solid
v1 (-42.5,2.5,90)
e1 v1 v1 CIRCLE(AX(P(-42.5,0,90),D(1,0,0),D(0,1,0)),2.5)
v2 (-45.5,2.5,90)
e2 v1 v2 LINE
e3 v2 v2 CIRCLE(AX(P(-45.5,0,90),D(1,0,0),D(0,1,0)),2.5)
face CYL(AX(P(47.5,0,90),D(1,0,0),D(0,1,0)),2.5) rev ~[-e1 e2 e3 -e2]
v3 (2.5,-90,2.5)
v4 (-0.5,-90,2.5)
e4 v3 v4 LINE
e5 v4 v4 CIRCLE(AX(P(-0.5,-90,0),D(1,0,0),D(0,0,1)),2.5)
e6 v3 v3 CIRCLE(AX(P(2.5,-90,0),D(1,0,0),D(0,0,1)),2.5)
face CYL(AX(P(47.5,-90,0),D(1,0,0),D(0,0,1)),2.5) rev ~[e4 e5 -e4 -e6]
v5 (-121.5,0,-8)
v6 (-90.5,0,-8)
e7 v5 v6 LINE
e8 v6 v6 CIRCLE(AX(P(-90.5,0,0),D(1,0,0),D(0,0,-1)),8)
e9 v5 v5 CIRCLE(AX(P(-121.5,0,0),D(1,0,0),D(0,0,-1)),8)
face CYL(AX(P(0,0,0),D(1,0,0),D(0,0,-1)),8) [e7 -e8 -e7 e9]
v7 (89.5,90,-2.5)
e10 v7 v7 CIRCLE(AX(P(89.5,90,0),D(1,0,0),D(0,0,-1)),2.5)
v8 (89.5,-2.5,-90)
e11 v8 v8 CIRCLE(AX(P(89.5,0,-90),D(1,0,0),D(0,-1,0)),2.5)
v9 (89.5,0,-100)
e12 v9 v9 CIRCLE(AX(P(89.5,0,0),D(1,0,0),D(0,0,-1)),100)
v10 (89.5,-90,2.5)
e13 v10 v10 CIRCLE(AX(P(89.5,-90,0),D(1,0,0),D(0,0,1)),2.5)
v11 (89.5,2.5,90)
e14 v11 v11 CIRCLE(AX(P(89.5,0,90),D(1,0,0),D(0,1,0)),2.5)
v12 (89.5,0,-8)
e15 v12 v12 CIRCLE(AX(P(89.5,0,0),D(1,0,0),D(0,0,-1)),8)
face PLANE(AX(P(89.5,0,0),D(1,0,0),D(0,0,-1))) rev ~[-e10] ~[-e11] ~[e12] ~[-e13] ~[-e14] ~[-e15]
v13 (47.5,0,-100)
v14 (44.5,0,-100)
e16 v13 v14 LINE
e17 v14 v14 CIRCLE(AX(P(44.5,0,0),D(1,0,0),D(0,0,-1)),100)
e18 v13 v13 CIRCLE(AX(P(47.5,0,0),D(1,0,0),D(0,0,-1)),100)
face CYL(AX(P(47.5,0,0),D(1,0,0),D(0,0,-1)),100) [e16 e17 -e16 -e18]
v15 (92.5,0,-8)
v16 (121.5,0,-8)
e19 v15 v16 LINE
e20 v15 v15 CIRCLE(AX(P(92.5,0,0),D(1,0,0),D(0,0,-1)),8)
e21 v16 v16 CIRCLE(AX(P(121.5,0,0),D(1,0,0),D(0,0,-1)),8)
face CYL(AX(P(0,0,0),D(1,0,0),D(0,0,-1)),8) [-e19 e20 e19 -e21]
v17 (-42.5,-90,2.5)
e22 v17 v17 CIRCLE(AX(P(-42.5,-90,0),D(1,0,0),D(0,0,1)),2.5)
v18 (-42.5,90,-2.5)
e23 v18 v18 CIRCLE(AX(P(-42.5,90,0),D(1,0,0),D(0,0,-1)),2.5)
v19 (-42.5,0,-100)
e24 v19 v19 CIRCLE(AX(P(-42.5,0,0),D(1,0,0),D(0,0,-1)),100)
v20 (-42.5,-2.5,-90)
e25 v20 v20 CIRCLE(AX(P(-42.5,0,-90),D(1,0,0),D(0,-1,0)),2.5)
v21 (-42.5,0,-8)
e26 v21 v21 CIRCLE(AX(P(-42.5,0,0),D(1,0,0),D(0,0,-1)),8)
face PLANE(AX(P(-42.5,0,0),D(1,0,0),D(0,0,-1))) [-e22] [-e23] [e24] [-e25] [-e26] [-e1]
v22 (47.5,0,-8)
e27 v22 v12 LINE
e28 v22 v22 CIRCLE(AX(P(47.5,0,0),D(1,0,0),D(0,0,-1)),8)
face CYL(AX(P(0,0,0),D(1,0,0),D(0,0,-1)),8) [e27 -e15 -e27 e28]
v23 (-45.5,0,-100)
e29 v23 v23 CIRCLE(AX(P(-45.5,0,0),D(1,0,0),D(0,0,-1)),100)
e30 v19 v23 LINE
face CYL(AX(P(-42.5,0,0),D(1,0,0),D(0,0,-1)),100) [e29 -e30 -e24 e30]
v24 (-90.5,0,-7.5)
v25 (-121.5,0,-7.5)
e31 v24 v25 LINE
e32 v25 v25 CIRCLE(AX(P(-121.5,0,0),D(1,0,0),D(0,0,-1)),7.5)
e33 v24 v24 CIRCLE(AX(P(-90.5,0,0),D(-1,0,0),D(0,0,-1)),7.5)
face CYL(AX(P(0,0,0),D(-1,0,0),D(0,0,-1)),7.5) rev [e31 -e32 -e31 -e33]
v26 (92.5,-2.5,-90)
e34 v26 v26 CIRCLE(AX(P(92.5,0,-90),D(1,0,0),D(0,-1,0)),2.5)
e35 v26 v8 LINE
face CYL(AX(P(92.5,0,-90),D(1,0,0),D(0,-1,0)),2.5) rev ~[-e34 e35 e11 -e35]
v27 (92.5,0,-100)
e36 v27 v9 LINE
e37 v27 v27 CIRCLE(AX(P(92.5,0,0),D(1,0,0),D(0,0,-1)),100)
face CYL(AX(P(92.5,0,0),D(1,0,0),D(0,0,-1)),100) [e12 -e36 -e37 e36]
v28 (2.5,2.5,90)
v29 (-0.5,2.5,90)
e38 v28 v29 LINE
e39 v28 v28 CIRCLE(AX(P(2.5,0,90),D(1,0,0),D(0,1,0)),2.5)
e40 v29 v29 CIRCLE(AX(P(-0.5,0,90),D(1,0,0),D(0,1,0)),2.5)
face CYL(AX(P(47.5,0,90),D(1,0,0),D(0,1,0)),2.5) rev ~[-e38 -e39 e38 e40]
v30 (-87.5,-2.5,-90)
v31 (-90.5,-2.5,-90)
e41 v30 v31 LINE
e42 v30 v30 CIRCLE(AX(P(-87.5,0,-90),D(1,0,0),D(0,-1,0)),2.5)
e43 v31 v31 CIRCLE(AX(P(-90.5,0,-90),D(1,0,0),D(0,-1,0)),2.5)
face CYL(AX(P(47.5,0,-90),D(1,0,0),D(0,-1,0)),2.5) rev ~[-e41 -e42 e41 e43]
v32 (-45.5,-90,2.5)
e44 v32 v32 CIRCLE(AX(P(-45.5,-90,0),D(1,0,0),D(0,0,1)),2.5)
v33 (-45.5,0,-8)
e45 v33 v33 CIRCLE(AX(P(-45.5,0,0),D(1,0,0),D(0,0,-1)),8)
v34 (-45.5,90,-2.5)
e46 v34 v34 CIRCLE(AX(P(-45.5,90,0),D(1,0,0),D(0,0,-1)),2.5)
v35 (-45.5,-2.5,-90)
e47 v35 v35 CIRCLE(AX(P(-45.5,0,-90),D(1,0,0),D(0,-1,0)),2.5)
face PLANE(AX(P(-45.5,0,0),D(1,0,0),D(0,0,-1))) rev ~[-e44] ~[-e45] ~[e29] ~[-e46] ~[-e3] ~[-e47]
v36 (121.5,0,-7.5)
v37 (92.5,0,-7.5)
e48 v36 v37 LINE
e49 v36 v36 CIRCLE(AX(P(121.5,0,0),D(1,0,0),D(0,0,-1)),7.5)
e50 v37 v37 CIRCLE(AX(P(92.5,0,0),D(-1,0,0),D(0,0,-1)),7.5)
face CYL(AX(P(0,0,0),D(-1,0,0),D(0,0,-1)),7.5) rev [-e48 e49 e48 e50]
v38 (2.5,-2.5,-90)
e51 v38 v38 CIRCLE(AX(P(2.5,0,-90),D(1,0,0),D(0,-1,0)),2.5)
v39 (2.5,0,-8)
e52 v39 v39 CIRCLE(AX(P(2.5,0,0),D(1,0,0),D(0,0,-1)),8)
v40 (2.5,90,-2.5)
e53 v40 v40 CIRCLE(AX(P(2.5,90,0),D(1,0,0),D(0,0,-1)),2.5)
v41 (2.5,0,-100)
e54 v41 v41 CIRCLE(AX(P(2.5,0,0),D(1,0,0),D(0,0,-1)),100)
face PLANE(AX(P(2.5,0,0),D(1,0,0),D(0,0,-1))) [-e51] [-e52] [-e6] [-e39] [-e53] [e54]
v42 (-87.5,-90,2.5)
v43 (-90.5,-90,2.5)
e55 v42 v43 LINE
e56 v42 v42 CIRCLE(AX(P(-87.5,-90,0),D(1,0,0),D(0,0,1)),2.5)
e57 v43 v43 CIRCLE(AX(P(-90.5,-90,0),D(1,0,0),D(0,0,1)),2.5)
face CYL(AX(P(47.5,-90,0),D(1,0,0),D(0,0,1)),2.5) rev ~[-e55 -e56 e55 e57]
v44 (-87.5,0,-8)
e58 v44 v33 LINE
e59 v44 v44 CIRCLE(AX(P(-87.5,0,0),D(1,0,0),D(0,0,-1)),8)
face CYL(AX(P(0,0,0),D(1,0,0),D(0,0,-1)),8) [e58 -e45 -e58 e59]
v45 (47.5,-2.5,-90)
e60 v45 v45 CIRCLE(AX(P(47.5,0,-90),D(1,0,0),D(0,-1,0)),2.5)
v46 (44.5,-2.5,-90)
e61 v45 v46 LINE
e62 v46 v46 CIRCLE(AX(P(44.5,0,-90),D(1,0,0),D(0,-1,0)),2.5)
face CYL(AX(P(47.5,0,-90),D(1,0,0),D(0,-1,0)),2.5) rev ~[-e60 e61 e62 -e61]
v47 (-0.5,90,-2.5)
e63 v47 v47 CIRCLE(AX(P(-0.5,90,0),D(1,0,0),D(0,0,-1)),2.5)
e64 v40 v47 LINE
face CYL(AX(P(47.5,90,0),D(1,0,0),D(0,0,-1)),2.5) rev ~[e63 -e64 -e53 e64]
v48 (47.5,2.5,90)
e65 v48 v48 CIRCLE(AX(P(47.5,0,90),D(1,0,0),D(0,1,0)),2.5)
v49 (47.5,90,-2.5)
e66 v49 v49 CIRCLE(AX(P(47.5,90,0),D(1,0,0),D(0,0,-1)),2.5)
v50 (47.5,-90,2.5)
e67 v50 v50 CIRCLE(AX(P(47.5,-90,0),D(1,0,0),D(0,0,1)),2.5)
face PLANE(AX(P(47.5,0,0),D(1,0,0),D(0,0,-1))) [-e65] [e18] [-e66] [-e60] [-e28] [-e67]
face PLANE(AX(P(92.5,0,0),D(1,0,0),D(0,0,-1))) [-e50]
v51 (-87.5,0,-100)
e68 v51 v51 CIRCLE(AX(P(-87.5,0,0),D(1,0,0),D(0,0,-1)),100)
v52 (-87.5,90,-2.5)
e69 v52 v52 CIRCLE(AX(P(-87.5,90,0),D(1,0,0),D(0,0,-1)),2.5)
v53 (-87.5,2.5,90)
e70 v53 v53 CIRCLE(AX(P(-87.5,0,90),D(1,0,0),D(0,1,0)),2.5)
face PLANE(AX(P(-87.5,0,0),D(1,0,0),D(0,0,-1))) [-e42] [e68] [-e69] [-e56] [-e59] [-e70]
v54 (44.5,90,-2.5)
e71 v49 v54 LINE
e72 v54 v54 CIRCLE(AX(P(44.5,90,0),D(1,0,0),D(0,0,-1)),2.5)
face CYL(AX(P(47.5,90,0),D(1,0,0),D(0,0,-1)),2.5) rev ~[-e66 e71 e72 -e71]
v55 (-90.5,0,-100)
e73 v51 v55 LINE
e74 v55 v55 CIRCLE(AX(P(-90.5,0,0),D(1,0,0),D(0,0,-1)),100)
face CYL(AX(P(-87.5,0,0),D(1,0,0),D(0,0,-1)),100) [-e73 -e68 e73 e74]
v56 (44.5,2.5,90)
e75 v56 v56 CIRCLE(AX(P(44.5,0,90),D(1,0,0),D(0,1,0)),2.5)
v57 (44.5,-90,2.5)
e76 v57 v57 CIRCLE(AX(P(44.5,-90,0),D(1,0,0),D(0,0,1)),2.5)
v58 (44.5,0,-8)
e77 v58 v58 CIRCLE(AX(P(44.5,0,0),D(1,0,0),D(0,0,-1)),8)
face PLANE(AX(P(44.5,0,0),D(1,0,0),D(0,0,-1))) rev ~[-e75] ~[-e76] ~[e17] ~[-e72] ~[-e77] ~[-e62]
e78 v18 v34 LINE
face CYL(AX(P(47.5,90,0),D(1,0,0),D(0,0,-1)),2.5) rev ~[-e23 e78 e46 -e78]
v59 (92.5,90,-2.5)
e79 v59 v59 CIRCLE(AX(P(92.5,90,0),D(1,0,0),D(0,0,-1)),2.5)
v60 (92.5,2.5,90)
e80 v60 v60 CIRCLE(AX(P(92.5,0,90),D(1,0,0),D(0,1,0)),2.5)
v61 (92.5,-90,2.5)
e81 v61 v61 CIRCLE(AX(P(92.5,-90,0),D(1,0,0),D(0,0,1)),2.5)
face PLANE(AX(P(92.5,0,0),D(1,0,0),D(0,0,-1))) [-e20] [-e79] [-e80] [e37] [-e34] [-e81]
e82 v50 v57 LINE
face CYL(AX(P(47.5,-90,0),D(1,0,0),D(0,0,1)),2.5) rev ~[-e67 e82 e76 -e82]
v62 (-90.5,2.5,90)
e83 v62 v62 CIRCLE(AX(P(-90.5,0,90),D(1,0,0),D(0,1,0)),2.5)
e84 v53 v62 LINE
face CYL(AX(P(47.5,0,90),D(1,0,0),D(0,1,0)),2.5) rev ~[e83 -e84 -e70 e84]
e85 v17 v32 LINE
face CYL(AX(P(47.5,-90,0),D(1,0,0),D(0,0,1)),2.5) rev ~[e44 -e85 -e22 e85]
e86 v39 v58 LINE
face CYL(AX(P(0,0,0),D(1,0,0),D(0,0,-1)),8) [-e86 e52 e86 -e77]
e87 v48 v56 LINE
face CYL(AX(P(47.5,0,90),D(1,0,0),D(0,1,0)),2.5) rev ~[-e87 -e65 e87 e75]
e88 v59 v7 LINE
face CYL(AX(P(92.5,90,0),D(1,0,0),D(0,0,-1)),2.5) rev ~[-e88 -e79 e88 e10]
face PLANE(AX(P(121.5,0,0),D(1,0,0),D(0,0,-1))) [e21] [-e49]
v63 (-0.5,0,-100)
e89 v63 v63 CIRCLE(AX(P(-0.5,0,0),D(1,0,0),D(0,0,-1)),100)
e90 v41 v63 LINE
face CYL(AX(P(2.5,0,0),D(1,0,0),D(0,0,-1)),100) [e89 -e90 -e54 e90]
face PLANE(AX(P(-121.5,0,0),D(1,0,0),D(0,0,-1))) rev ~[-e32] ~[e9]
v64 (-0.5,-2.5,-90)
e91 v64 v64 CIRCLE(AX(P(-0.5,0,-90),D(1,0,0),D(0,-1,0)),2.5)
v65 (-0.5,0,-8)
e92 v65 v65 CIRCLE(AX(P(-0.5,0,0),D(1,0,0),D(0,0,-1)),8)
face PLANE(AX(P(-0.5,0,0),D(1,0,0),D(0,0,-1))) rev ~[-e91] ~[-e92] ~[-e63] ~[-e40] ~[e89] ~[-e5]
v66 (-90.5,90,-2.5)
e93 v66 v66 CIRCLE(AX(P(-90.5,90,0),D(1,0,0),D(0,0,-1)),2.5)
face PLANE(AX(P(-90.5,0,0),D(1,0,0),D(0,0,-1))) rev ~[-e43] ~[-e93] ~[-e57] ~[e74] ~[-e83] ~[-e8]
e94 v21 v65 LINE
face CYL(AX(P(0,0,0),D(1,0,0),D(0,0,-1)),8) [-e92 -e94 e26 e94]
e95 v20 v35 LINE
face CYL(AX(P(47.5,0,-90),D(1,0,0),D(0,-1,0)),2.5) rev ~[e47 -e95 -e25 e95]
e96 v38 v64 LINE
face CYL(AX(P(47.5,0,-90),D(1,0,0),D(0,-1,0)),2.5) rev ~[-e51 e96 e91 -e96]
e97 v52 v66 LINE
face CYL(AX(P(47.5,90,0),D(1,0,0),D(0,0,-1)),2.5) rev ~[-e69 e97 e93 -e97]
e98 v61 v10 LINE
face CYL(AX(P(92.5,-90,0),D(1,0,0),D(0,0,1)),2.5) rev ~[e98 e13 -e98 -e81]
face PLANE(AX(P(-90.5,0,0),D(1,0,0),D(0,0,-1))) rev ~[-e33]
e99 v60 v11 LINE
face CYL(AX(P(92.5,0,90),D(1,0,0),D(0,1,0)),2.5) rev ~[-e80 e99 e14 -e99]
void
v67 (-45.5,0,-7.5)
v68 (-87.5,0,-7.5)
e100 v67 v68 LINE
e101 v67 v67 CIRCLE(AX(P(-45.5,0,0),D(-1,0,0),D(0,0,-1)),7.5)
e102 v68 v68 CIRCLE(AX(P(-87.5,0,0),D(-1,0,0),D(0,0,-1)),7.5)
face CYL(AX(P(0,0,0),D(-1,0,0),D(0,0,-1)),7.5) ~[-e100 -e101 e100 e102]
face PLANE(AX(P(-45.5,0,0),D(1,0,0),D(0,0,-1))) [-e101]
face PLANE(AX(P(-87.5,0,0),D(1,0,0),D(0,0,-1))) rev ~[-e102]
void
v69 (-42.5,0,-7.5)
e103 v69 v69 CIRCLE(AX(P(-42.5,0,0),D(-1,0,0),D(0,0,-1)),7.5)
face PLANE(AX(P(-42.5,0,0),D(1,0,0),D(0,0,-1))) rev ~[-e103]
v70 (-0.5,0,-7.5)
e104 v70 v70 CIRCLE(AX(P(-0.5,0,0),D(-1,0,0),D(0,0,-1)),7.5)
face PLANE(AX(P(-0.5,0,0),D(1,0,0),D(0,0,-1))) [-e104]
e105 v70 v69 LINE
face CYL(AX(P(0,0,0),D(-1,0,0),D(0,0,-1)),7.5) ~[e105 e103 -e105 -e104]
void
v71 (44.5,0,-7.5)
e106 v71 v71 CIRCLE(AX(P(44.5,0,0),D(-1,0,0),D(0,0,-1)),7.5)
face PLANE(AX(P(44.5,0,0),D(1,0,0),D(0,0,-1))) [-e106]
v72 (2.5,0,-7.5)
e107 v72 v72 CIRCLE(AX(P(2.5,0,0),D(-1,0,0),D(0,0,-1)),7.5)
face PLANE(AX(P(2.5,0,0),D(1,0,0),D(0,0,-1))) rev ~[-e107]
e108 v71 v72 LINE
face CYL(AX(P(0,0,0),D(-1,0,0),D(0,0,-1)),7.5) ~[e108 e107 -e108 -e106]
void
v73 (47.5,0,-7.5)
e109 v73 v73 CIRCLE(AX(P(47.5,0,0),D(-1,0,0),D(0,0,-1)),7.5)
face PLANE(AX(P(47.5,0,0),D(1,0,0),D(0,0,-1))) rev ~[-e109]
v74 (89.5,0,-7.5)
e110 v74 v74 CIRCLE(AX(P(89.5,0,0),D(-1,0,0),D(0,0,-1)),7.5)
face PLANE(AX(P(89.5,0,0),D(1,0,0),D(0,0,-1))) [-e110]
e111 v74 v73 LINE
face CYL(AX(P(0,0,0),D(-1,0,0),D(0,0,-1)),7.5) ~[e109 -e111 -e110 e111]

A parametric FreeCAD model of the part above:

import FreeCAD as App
import Part
import Sketcher

V = App.Vector
Q = App.Units.Quantity

doc = App.newDocument("Part")
body = doc.addObject("PartDesign::Body", "Body")

# Sketch on YZ plane
sketch1 = body.newObject("Sketcher::SketchObject", "Sketch")
sketch1.AttachmentSupport = (doc.getObject("YZ_Plane"), [""])
sketch1.MapMode = "FlatFace"
sketch1.addGeometry([
    Part.Circle(V(0, 0, 0), V(0, 0, 1), 8),
    Part.Circle(V(0, 0, 0), V(0, 0, 1), 8),
], False)
sketch1.addConstraint([
    Sketcher.Constraint("Coincident", 0, 3, -1, 1),
    Sketcher.Constraint("Coincident", 1, 3, -1, 1),
    Sketcher.Constraint("Diameter", 0, Q("16 mm")),
    Sketcher.Constraint("Diameter", 1, Q("15 mm")),
])
pad1 = body.newObject("PartDesign::Pad", "Pad")
pad1.Profile = sketch1
pad1.Length = 243
pad1.Midplane = True

# Sketch on YZ plane
sketch2 = body.newObject("Sketcher::SketchObject", "Sketch001")
sketch2.AttachmentSupport = (doc.getObject("YZ_Plane"), [""])
sketch2.MapMode = "FlatFace"
sketch2.AttachmentOffset = App.Placement(V(0, 0, 92.5), App.Rotation())
sketch2.addGeometry(Part.Circle(V(0, 0, 0), V(0, 0, 1), 100), False)
sketch2.addConstraint([
    Sketcher.Constraint("Coincident", 0, 3, -1, 1),
    Sketcher.Constraint("Diameter", 0, Q("200 mm")),
])
pad2 = body.newObject("PartDesign::Pad", "Pad001")
pad2.Profile = sketch2
pad2.Length = 3
pad2.Reversed = True

# Sketch on YZ plane
sketch3 = body.newObject("Sketcher::SketchObject", "Sketch002")
sketch3.AttachmentSupport = (doc.getObject("YZ_Plane"), [""])
sketch3.MapMode = "FlatFace"
sketch3.AttachmentOffset = App.Placement(V(0, 0, 92.5), App.Rotation())
sketch3.addGeometry(Part.Circle(V(90, 0, 0), V(0, 0, 1), 2.5), False)
sketch3.addConstraint([
    Sketcher.Constraint("PointOnObject", 0, 3, -1),
    Sketcher.Constraint("Diameter", 0, Q("5 mm")),
    Sketcher.Constraint("DistanceX", -1, 1, 0, 3, Q("90 mm")),
])
pocket1 = body.newObject("PartDesign::Pocket", "Pocket")
pocket1.Profile = sketch3
pocket1.Type = "ThroughAll"
doc.recompute()

polarpattern = body.newObject("PartDesign::PolarPattern", "PolarPattern")
polarpattern.Originals = [pocket1]
polarpattern.Axis = (doc.getObject("X_Axis"), [""])
polarpattern.Angle = 360
polarpattern.Occurrences = 4
body.Tip = polarpattern
doc.recompute()

linearpattern = body.newObject("PartDesign::LinearPattern", "LinearPattern")
linearpattern.Originals = [pad2, pocket1]
linearpattern.Direction = (doc.getObject("X_Axis"), [""])
linearpattern.Mode = "offset"
linearpattern.Offset = 45
linearpattern.Occurrences = 5
linearpattern.Reversed = True
body.Tip = linearpattern

# Sketch on YZ plane
sketch4 = body.newObject("Sketcher::SketchObject", "Sketch003")
sketch4.AttachmentSupport = (doc.getObject("YZ_Plane"), [""])
sketch4.MapMode = "FlatFace"
sketch4.AttachmentOffset = App.Placement(V(0, 0, 47.5), App.Rotation())
sketch4.addGeometry(Part.Circle(V(0, 90, 0), V(0, 0, 1), 2.5), False)
sketch4.addConstraint([
    Sketcher.Constraint("PointOnObject", 0, 3, -2),
    Sketcher.Constraint("Diameter", 0, Q("5 mm")),
    Sketcher.Constraint("DistanceY", -1, 1, 0, 3, Q("90 mm")),
])
pocket2 = body.newObject("PartDesign::Pocket", "Pocket001")
pocket2.Profile = sketch4
pocket2.Type = "ThroughAll"

# Sketch on YZ plane
sketch5 = body.newObject("Sketcher::SketchObject", "Sketch004")
sketch5.AttachmentSupport = (doc.getObject("YZ_Plane"), [""])
sketch5.MapMode = "FlatFace"
sketch5.AttachmentOffset = App.Placement(V(0, 0, 2.5), App.Rotation())
sketch5.addGeometry(Part.Circle(V(0, 90, 0), V(0, 0, 1), 2.5), False)
sketch5.addConstraint([
    Sketcher.Constraint("PointOnObject", 0, 3, -2),
    Sketcher.Constraint("Diameter", 0, Q("5 mm")),
    Sketcher.Constraint("DistanceY", -1, 1, 0, 3, Q("90 mm")),
])
pocket3 = body.newObject("PartDesign::Pocket", "Pocket002")
pocket3.Profile = sketch5
pocket3.Type = "ThroughAll"

# Sketch on YZ plane
sketch6 = body.newObject("Sketcher::SketchObject", "Sketch005")
sketch6.AttachmentSupport = (doc.getObject("YZ_Plane"), [""])
sketch6.MapMode = "FlatFace"
sketch6.AttachmentOffset = App.Placement(V(0, 0, -42.5), App.Rotation())
sketch6.addGeometry(Part.Circle(V(0, 90, 0), V(0, 0, 1), 2.5), False)
sketch6.addConstraint([
    Sketcher.Constraint("PointOnObject", 0, 3, -2),
    Sketcher.Constraint("Diameter", 0, Q("5 mm")),
    Sketcher.Constraint("DistanceY", -1, 1, 0, 3, Q("90 mm")),
])
pocket4 = body.newObject("PartDesign::Pocket", "Pocket003")
pocket4.Profile = sketch6
pocket4.Type = "ThroughAll"

# Sketch on YZ plane
sketch7 = body.newObject("Sketcher::SketchObject", "Sketch006")
sketch7.AttachmentSupport = (doc.getObject("YZ_Plane"), [""])
sketch7.MapMode = "FlatFace"
sketch7.AttachmentOffset = App.Placement(V(0, 0, -87.5), App.Rotation())
sketch7.addGeometry(Part.Circle(V(0, 90, 0), V(0, 0, 1), 2.5), False)
sketch7.addConstraint([
    Sketcher.Constraint("PointOnObject", 0, 3, -2),
    Sketcher.Constraint("Diameter", 0, Q("5 mm")),
    Sketcher.Constraint("DistanceY", -1, 1, 0, 3, Q("90 mm")),
])
pocket5 = body.newObject("PartDesign::Pocket", "Pocket004")
pocket5.Profile = sketch7
pocket5.Type = "ThroughAll"

# Sketch on YZ plane
sketch8 = body.newObject("Sketcher::SketchObject", "Sketch007")
sketch8.AttachmentSupport = (doc.getObject("YZ_Plane"), [""])
sketch8.MapMode = "FlatFace"
sketch8.AttachmentOffset = App.Placement(V(0, 0, 47.5), App.Rotation())
sketch8.addGeometry(Part.Circle(V(-90, 0, 0), V(0, 0, 1), 2.5), False)
sketch8.addConstraint([
    Sketcher.Constraint("PointOnObject", 0, 3, -1),
    Sketcher.Constraint("Diameter", 0, Q("5 mm")),
    Sketcher.Constraint("DistanceX", 0, 3, -1, 1, Q("90 mm")),
])
pocket6 = body.newObject("PartDesign::Pocket", "Pocket005")
pocket6.Profile = sketch8
pocket6.Type = "ThroughAll"

# Sketch on YZ plane
sketch9 = body.newObject("Sketcher::SketchObject", "Sketch008")
sketch9.AttachmentSupport = (doc.getObject("YZ_Plane"), [""])
sketch9.MapMode = "FlatFace"
sketch9.AttachmentOffset = App.Placement(V(0, 0, 2.5), App.Rotation())
sketch9.addGeometry(Part.Circle(V(-90, 0, 0), V(0, 0, 1), 2.5), False)
sketch9.addConstraint([
    Sketcher.Constraint("PointOnObject", 0, 3, -1),
    Sketcher.Constraint("Diameter", 0, Q("5 mm")),
    Sketcher.Constraint("DistanceX", 0, 3, -1, 1, Q("90 mm")),
])
pocket7 = body.newObject("PartDesign::Pocket", "Pocket006")
pocket7.Profile = sketch9
pocket7.Type = "ThroughAll"

# Sketch on YZ plane
sketch10 = body.newObject("Sketcher::SketchObject", "Sketch009")
sketch10.AttachmentSupport = (doc.getObject("YZ_Plane"), [""])
sketch10.MapMode = "FlatFace"
sketch10.AttachmentOffset = App.Placement(V(0, 0, -42.5), App.Rotation())
sketch10.addGeometry(Part.Circle(V(-90, 0, 0), V(0, 0, 1), 2.5), False)
sketch10.addConstraint([
    Sketcher.Constraint("PointOnObject", 0, 3, -1),
    Sketcher.Constraint("Diameter", 0, Q("5 mm")),
    Sketcher.Constraint("DistanceX", 0, 3, -1, 1, Q("90 mm")),
])
pocket8 = body.newObject("PartDesign::Pocket", "Pocket007")
pocket8.Profile = sketch10
pocket8.Type = "ThroughAll"

# Sketch on YZ plane
sketch11 = body.newObject("Sketcher::SketchObject", "Sketch010")
sketch11.AttachmentSupport = (doc.getObject("YZ_Plane"), [""])
sketch11.MapMode = "FlatFace"
sketch11.AttachmentOffset = App.Placement(V(0, 0, -87.5), App.Rotation())
sketch11.addGeometry(Part.Circle(V(-90, 0, 0), V(0, 0, 1), 2.5), False)
sketch11.addConstraint([
    Sketcher.Constraint("PointOnObject", 0, 3, -1),
    Sketcher.Constraint("Diameter", 0, Q("5 mm")),
    Sketcher.Constraint("DistanceX", 0, 3, -1, 1, Q("90 mm")),
])
pocket9 = body.newObject("PartDesign::Pocket", "Pocket008")
pocket9.Profile = sketch11
pocket9.Type = "ThroughAll"

# Sketch on YZ plane
sketch12 = body.newObject("Sketcher::SketchObject", "Sketch011")
sketch12.AttachmentSupport = (doc.getObject("YZ_Plane"), [""])
sketch12.MapMode = "FlatFace"
sketch12.AttachmentOffset = App.Placement(V(0, 0, 47.5), App.Rotation())
sketch12.addGeometry(Part.Circle(V(0, -90, 0), V(0, 0, 1), 2.5), False)
sketch12.addConstraint([
    Sketcher.Constraint("PointOnObject", 0, 3, -2),
    Sketcher.Constraint("Diameter", 0, Q("5 mm")),
    Sketcher.Constraint("DistanceY", 0, 3, -1, 1, Q("90 mm")),
])
pocket10 = body.newObject("PartDesign::Pocket", "Pocket009")
pocket10.Profile = sketch12
pocket10.Type = "ThroughAll"

# Sketch on YZ plane
sketch13 = body.newObject("Sketcher::SketchObject", "Sketch012")
sketch13.AttachmentSupport = (doc.getObject("YZ_Plane"), [""])
sketch13.MapMode = "FlatFace"
sketch13.AttachmentOffset = App.Placement(V(0, 0, 2.5), App.Rotation())
sketch13.addGeometry(Part.Circle(V(0, -90, 0), V(0, 0, 1), 2.5), False)
sketch13.addConstraint([
    Sketcher.Constraint("PointOnObject", 0, 3, -2),
    Sketcher.Constraint("Diameter", 0, Q("5 mm")),
    Sketcher.Constraint("DistanceY", 0, 3, -1, 1, Q("90 mm")),
])
pocket11 = body.newObject("PartDesign::Pocket", "Pocket010")
pocket11.Profile = sketch13
pocket11.Type = "ThroughAll"

# Sketch on YZ plane
sketch14 = body.newObject("Sketcher::SketchObject", "Sketch013")
sketch14.AttachmentSupport = (doc.getObject("YZ_Plane"), [""])
sketch14.MapMode = "FlatFace"
sketch14.AttachmentOffset = App.Placement(V(0, 0, -42.5), App.Rotation())
sketch14.addGeometry(Part.Circle(V(0, -90, 0), V(0, 0, 1), 2.5), False)
sketch14.addConstraint([
    Sketcher.Constraint("PointOnObject", 0, 3, -2),
    Sketcher.Constraint("Diameter", 0, Q("5 mm")),
    Sketcher.Constraint("DistanceY", 0, 3, -1, 1, Q("90 mm")),
])
pocket12 = body.newObject("PartDesign::Pocket", "Pocket011")
pocket12.Profile = sketch14
pocket12.Type = "ThroughAll"

# Sketch on YZ plane
sketch15 = body.newObject("Sketcher::SketchObject", "Sketch014")
sketch15.AttachmentSupport = (doc.getObject("YZ_Plane"), [""])
sketch15.MapMode = "FlatFace"
sketch15.AttachmentOffset = App.Placement(V(0, 0, -87.5), App.Rotation())
sketch15.addGeometry(Part.Circle(V(0, -90, 0), V(0, 0, 1), 2.5), False)
sketch15.addConstraint([
    Sketcher.Constraint("PointOnObject", 0, 3, -2),
    Sketcher.Constraint("Diameter", 0, Q("5 mm")),
    Sketcher.Constraint("DistanceY", 0, 3, -1, 1, Q("90 mm")),
])
pocket13 = body.newObject("PartDesign::Pocket", "Pocket012")
pocket13.Profile = sketch15
pocket13.Type = "ThroughAll"

doc.recompute()
